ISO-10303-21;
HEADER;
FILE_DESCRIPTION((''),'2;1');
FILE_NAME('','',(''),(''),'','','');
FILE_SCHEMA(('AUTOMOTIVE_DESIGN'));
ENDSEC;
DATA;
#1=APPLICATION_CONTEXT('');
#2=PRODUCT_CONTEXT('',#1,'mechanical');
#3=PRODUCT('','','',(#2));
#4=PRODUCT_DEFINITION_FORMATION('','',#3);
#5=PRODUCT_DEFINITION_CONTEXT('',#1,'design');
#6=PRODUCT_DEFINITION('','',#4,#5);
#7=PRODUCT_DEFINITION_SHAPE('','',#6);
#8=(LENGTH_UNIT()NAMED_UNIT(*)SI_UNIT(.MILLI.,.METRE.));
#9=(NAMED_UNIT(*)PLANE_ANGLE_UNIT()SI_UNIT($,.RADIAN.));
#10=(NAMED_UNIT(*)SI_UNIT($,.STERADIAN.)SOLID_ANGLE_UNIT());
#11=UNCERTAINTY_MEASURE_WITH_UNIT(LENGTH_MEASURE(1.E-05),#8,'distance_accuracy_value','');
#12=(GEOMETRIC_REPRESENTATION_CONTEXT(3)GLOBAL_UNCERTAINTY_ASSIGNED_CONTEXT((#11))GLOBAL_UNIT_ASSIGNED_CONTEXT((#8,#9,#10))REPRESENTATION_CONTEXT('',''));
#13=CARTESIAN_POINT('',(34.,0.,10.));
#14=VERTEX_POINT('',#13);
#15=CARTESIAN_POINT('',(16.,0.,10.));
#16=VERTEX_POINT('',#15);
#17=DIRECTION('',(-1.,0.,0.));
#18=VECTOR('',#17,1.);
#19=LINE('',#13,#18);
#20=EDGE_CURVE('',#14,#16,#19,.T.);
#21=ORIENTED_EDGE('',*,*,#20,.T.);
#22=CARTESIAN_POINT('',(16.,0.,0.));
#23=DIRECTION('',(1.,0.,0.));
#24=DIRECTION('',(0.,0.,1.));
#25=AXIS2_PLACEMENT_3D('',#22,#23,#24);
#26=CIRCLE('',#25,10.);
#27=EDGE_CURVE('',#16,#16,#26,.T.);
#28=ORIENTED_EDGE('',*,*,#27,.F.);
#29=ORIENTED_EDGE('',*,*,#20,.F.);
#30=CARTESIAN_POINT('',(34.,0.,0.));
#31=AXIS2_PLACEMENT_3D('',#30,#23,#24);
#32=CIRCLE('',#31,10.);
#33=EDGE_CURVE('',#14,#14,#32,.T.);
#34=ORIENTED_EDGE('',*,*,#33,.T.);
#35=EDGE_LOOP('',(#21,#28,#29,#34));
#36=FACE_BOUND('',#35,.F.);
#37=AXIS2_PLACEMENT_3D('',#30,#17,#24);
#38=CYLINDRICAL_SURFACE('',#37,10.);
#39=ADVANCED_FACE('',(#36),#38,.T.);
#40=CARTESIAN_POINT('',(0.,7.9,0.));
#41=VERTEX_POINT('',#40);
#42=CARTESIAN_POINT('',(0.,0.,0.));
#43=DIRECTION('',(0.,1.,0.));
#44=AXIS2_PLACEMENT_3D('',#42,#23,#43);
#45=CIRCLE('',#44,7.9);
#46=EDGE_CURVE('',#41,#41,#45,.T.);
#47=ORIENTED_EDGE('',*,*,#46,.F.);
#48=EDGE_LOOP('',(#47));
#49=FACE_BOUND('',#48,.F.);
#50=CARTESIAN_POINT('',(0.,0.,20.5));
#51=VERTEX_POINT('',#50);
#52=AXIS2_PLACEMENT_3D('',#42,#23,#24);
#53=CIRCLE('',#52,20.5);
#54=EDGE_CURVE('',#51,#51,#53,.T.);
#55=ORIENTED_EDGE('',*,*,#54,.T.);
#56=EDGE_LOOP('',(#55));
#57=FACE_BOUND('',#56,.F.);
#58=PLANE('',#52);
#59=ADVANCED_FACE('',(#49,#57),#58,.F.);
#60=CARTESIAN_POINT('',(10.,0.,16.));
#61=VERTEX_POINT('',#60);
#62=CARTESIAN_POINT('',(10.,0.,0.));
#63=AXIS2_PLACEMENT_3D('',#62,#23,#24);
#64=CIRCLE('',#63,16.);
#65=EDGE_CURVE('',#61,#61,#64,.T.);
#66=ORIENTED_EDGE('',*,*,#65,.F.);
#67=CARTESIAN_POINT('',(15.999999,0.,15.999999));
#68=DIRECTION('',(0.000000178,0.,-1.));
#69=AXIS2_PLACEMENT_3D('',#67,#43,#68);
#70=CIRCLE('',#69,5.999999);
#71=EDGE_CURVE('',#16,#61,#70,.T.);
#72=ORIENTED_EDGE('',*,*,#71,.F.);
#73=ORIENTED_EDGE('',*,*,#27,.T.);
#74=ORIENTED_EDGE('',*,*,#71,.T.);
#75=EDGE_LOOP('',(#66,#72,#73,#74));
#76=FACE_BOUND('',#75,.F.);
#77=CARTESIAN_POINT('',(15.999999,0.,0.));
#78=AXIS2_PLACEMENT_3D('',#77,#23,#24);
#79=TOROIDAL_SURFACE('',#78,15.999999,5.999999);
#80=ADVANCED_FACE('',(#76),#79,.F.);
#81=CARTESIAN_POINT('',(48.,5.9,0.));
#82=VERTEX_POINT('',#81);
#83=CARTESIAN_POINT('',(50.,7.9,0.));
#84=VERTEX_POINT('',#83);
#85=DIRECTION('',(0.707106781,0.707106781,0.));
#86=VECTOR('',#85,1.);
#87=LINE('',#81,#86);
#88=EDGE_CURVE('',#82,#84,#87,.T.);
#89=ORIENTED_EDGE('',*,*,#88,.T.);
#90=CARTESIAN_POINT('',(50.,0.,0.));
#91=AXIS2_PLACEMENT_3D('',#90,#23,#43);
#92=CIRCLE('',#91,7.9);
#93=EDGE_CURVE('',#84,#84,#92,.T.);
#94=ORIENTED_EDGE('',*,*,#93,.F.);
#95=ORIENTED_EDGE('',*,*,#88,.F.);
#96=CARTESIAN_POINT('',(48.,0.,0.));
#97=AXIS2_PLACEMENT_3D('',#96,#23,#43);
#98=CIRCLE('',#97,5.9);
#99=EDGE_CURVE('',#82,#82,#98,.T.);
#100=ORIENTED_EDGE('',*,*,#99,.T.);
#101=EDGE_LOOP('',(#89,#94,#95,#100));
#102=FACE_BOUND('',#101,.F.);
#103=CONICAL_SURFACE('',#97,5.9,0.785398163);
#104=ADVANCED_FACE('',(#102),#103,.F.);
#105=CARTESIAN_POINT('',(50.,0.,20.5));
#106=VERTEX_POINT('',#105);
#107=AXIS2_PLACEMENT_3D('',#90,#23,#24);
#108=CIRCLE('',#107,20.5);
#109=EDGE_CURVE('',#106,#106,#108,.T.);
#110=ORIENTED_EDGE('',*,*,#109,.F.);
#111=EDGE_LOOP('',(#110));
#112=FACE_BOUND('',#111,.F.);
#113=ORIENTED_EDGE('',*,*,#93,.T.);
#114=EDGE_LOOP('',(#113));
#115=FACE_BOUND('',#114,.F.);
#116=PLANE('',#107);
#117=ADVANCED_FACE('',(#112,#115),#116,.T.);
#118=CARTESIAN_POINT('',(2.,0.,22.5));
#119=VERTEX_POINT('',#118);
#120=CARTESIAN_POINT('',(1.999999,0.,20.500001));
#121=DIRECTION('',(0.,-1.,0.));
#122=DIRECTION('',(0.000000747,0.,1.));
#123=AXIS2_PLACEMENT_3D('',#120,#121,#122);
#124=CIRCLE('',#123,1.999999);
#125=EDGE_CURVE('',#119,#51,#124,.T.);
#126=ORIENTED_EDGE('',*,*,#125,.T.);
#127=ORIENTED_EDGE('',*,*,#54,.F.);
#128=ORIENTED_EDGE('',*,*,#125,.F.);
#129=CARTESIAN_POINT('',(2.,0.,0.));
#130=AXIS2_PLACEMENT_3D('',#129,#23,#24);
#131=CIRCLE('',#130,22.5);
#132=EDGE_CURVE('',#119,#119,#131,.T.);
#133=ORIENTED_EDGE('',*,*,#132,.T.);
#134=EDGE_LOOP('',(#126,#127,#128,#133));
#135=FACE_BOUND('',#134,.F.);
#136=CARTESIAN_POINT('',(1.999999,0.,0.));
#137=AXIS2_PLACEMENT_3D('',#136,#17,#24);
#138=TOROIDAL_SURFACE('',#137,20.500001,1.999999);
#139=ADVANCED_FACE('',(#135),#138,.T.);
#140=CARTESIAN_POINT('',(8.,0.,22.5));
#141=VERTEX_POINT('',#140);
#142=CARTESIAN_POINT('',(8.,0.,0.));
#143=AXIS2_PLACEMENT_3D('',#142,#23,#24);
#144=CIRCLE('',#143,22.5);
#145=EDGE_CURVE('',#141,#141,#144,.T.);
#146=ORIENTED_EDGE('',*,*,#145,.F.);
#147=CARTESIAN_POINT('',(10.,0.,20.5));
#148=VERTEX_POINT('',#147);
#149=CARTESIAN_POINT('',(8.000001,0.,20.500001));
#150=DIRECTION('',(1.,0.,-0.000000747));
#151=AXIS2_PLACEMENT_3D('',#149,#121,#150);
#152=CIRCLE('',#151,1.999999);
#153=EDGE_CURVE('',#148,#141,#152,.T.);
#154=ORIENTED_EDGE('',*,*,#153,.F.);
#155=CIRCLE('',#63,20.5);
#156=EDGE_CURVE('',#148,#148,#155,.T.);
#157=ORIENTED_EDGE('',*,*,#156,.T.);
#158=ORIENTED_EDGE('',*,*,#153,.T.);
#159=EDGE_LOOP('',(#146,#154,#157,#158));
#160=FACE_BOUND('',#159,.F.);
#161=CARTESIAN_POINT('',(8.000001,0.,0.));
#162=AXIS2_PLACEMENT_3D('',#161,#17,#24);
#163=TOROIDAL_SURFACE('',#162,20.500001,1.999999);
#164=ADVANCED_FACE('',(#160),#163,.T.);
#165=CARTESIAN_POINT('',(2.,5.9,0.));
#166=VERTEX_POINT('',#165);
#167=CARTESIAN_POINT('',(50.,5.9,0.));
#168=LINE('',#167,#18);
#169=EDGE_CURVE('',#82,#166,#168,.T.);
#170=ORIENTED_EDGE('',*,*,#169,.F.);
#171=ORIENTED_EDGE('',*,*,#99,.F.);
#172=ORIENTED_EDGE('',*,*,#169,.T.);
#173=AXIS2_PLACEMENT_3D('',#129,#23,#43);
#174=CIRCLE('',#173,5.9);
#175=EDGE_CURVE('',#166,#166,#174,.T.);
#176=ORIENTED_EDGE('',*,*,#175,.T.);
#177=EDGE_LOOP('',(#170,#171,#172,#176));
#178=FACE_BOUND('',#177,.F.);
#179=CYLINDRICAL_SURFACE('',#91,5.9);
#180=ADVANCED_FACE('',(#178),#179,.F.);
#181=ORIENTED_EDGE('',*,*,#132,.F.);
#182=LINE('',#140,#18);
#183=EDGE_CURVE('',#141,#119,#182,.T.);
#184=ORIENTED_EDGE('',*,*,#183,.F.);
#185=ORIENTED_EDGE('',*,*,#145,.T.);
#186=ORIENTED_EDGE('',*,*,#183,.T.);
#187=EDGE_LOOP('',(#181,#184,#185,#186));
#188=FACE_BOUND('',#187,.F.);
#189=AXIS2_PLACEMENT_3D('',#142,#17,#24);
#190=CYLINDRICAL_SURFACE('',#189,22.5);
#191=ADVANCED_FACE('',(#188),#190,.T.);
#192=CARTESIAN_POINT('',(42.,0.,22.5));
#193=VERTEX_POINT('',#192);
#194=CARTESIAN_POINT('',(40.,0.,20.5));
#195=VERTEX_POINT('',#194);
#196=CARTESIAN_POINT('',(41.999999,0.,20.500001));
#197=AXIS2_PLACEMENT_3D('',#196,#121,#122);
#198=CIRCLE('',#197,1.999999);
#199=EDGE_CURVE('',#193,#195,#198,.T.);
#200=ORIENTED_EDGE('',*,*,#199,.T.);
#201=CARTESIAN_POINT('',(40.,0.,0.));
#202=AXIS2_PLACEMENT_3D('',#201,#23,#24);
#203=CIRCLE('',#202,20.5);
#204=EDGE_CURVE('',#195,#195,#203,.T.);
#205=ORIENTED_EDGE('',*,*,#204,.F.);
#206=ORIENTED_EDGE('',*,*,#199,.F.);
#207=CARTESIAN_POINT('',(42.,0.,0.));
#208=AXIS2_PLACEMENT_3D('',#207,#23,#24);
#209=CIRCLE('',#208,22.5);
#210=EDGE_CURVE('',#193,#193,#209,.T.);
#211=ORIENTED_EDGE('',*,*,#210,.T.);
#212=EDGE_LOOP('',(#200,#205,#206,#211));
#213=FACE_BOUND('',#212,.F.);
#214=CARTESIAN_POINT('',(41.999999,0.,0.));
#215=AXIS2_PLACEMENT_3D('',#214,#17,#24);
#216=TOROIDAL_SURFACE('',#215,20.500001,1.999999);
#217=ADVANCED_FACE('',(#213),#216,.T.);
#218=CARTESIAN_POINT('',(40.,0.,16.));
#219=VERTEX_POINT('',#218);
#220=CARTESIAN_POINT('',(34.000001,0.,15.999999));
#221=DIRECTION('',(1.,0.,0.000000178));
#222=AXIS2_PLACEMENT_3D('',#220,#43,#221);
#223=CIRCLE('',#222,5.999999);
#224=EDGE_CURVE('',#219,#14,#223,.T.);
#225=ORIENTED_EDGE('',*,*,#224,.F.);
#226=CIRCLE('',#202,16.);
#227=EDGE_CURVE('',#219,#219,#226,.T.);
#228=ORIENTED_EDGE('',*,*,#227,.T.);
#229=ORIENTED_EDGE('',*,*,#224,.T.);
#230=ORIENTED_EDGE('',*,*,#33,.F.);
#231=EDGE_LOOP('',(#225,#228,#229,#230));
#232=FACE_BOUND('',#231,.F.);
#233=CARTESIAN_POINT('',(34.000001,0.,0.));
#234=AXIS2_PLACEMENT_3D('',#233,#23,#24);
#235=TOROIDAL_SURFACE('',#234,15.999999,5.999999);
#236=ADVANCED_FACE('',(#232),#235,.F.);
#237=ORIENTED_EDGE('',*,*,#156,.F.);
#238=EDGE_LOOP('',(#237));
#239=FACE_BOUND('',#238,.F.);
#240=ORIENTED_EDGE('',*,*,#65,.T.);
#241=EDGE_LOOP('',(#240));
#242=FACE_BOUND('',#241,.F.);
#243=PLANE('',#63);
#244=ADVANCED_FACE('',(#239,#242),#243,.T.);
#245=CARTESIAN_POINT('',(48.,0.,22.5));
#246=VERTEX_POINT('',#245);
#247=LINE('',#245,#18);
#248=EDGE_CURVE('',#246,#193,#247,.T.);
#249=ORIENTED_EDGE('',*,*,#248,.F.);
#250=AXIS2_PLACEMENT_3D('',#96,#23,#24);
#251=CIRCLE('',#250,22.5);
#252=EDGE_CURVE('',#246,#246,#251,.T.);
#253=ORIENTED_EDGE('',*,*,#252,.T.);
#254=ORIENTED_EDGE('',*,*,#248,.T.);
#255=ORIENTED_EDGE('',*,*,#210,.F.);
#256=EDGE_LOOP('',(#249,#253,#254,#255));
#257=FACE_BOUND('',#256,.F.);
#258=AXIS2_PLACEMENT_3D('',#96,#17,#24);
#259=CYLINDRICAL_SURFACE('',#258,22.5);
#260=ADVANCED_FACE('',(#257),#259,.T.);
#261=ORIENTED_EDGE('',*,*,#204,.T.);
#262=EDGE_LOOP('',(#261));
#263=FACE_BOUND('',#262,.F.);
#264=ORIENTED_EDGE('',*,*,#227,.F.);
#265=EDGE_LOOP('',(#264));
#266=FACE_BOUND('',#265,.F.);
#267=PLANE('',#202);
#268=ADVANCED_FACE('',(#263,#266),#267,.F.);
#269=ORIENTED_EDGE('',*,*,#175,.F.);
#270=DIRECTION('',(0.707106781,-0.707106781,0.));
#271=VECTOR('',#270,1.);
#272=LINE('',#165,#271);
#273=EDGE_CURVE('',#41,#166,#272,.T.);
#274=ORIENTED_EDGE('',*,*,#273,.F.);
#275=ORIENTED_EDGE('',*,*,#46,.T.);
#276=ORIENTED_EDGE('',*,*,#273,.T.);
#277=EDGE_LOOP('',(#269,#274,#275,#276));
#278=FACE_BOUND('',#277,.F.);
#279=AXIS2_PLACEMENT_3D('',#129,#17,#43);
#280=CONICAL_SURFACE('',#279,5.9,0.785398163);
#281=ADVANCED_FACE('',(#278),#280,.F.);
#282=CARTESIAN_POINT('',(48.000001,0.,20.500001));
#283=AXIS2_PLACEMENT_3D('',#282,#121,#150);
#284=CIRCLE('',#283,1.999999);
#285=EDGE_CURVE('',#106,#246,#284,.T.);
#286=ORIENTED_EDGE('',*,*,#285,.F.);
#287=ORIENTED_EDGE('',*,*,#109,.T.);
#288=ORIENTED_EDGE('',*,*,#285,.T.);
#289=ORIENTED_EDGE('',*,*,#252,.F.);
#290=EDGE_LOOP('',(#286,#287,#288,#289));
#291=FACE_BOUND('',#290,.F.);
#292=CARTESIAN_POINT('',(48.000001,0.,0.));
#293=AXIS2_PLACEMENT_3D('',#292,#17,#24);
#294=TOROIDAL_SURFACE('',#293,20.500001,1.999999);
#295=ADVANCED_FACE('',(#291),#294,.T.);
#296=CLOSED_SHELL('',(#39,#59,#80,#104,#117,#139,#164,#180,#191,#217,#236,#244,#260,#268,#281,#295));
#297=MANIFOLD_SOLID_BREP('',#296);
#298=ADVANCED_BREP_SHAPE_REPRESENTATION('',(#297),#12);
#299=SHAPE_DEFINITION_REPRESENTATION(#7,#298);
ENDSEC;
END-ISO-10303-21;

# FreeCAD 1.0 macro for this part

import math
import FreeCAD as App
import Part
import Sketcher
from FreeCAD import Vector


def edges_at(feature, points):
    """Names of the edges that pass closest to the given points."""
    edges = feature.Shape.Edges
    near = lambda p: min(range(len(edges)), key=lambda i: edges[i].distToShape(Part.Vertex(*p))[0])
    return sorted({f"Edge{near(p) + 1}" for p in points})

doc = App.newDocument("Part")
params = doc.addObject("Spreadsheet::Sheet", "Params")
for row, (alias, value) in enumerate([
    ("sketch1_radius", "1.999999 mm"),
    ("sketch1_radius2", "5.999999 mm"),
    ("sketch1_width", "50 mm"),
    ("sketch1_width2", "6 mm"),
    ("sketch1_height", "20.5 mm"),
    ("revolution_angle", "360 deg"),
    ("sketch2_diameter", "11.8 mm"),
    ("chamfer_size", "2 mm"),
], start=1):
    params.set(f"A{row}", alias)
    params.set(f"B{row}", "=" + value)
    params.setAlias(f"B{row}", alias)

body = doc.addObject("PartDesign::Body", "Body")

# Sketch on XZ plane
sketch1 = body.newObject("Sketcher::SketchObject", "Sketch")
sketch1.AttachmentSupport = (doc.getObject("XZ_Plane"), [""])
sketch1.MapMode = "FlatFace"
sketch1.addGeometry([
    Part.ArcOfCircle(Part.Circle(Vector(2, 20.5, 0), Vector(0, 0, 1), 2), math.radians(90), math.radians(180)),  # 0
    Part.LineSegment(Vector(0, 20.5, 0), Vector(0, 0, 0)),  # 1
    Part.LineSegment(Vector(0, 0, 0), Vector(50, 0, 0)),  # 2
    Part.LineSegment(Vector(50, 0, 0), Vector(50, 20.5, 0)),  # 3
    Part.ArcOfCircle(Part.Circle(Vector(48, 20.5, 0), Vector(0, 0, 1), 2), math.radians(0), math.radians(90)),  # 4
    Part.LineSegment(Vector(48, 22.5, 0), Vector(42, 22.5, 0)),  # 5
    Part.ArcOfCircle(Part.Circle(Vector(42, 20.5, 0), Vector(0, 0, 1), 2), math.radians(90), math.radians(180)),  # 6
    Part.LineSegment(Vector(40, 20.5, 0), Vector(40, 16, 0)),  # 7
    Part.ArcOfCircle(Part.Circle(Vector(34, 16, 0), Vector(0, 0, 1), 6), math.radians(-90), math.radians(0)),  # 8
    Part.LineSegment(Vector(34, 10, 0), Vector(16, 10, 0)),  # 9
    Part.ArcOfCircle(Part.Circle(Vector(16, 16, 0), Vector(0, 0, 1), 6), math.radians(180), math.radians(270)),  # 10
    Part.LineSegment(Vector(10, 16, 0), Vector(10, 20.5, 0)),  # 11
    Part.ArcOfCircle(Part.Circle(Vector(8, 20.5, 0), Vector(0, 0, 1), 2), math.radians(0), math.radians(90)),  # 12
    Part.LineSegment(Vector(8, 22.5, 0), Vector(2, 22.5, 0)),  # 13
], False)
sketch1.addConstraint([
    Sketcher.Constraint("Tangent", 0, 2, 1, 1),
    Sketcher.Constraint("Coincident", 1, 2, 2, 1),
    Sketcher.Constraint("Coincident", 2, 2, 3, 1),
    Sketcher.Constraint("Tangent", 3, 2, 4, 1),
    Sketcher.Constraint("Tangent", 4, 2, 5, 1),
    Sketcher.Constraint("Tangent", 5, 2, 6, 1),
    Sketcher.Constraint("Tangent", 6, 2, 7, 1),
    Sketcher.Constraint("Tangent", 7, 2, 8, 2),
    Sketcher.Constraint("Tangent", 8, 1, 9, 1),
    Sketcher.Constraint("Tangent", 9, 2, 10, 2),
    Sketcher.Constraint("Tangent", 10, 1, 11, 1),
    Sketcher.Constraint("Tangent", 11, 2, 12, 1),
    Sketcher.Constraint("Tangent", 12, 2, 13, 1),
    Sketcher.Constraint("Tangent", 13, 2, 0, 1),
    Sketcher.Constraint("Vertical", 1),
    Sketcher.Constraint("Horizontal", 2),
    Sketcher.Constraint("Vertical", 3),
    Sketcher.Constraint("Horizontal", 5),
    Sketcher.Constraint("Vertical", 7),
    Sketcher.Constraint("Horizontal", 9),
    Sketcher.Constraint("Vertical", 11),
    Sketcher.Constraint("Horizontal", 13),
    Sketcher.Constraint("Coincident", 1, 2, -1, 1),
    Sketcher.Constraint("Equal", 0, 4),
    Sketcher.Constraint("Equal", 4, 6),
    Sketcher.Constraint("Equal", 8, 10),
    Sketcher.Constraint("Equal", 6, 12),
    Sketcher.Constraint("Horizontal", 0, 3, 4, 3),
    Sketcher.Constraint("Equal", 5, 13),
    Sketcher.Constraint("Radius", 0, 1.999999),
    Sketcher.Constraint("Radius", 8, 5.999999),
    Sketcher.Constraint("DistanceX", 2, 1, 2, 2, 50.0),
    Sketcher.Constraint("DistanceX", 5, 2, 5, 1, 6.0),
    Sketcher.Constraint("DistanceY", 1, 2, 1, 1, 20.5),
    Sketcher.Constraint("DistanceY", 7, 2, 7, 1, 4.5),
])
sketch1.setExpression("Constraints[29]", "Params.sketch1_radius")
sketch1.setExpression("Constraints[30]", "Params.sketch1_radius2")
sketch1.setExpression("Constraints[31]", "Params.sketch1_width")
sketch1.setExpression("Constraints[32]", "Params.sketch1_width2")
sketch1.setExpression("Constraints[33]", "Params.sketch1_height")
revolution = body.newObject("PartDesign::Revolution", "Revolution")
revolution.Profile = sketch1
revolution.ReferenceAxis = (sketch1, ["H_Axis"])
revolution.setExpression("Angle", "Params.revolution_angle")

# Sketch on YZ plane
sketch2 = body.newObject("Sketcher::SketchObject", "Sketch001")
sketch2.AttachmentSupport = (doc.getObject("YZ_Plane"), [""])
sketch2.MapMode = "FlatFace"
sketch2.AttachmentOffset = App.Placement(Vector(0, 0, 50), App.Rotation())
sketch2.addGeometry(Part.Circle(Vector(0, 0, 0), Vector(0, 0, 1), 6), False)
sketch2.addConstraint([
    Sketcher.Constraint("Coincident", 0, 3, -1, 1),
    Sketcher.Constraint("Diameter", 0, 11.8),
])
sketch2.setExpression("Constraints[1]", "Params.sketch2_diameter")
pocket1 = body.newObject("PartDesign::Pocket", "Pocket")
pocket1.Profile = sketch2
pocket1.Type = "ThroughAll"
doc.recompute()

chamfer = body.newObject("PartDesign::Chamfer", "Chamfer")
chamfer.Base = (pocket1, edges_at(pocket1, [(50, -5.9, 0), (25, 5.9, 0), (0, -5.9, 0)]))
chamfer.setExpression("Size", "Params.chamfer_size")

doc.recompute()
